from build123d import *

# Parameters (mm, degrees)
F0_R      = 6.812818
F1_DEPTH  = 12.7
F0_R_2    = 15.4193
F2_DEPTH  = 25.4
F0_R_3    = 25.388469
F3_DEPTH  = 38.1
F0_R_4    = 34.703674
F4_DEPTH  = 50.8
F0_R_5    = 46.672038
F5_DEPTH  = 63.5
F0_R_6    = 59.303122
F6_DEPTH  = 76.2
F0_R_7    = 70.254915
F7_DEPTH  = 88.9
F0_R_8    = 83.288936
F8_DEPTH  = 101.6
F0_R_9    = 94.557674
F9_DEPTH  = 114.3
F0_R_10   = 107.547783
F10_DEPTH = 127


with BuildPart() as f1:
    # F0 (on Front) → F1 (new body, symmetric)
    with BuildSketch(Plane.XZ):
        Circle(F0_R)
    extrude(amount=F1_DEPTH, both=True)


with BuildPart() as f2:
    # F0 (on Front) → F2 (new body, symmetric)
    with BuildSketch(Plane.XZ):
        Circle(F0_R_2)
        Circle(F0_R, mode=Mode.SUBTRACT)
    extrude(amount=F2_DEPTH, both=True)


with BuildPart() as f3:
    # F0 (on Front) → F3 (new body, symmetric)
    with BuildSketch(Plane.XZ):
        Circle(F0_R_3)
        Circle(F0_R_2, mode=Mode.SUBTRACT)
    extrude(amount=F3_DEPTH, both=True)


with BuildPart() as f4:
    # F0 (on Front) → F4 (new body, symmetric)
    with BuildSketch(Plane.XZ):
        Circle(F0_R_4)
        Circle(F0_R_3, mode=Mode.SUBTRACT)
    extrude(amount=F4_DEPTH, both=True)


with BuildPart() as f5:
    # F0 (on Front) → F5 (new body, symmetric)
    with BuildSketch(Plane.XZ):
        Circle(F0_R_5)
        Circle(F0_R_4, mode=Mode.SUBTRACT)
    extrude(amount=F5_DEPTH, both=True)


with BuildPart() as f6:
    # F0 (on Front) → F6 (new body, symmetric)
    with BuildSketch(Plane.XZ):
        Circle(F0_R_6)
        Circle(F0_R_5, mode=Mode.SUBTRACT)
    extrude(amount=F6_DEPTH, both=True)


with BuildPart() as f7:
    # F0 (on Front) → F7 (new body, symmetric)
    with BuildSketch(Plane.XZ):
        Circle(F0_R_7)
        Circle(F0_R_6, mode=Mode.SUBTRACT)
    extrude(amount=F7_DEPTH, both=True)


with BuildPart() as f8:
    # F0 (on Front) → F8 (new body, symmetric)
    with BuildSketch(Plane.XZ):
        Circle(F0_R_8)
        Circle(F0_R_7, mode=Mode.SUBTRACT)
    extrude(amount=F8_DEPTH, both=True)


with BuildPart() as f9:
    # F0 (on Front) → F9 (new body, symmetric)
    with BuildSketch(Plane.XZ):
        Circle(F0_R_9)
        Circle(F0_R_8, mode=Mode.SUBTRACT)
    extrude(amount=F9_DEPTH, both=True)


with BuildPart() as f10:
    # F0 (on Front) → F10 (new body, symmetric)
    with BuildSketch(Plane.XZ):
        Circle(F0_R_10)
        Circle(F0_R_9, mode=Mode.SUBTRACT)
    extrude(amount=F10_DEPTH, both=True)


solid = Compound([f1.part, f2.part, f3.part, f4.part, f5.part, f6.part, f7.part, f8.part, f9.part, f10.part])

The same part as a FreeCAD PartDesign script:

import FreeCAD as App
import Part
import Sketcher

V = App.Vector
Q = App.Units.Quantity

doc = App.newDocument("Part")
body = doc.addObject("PartDesign::Body", "Body")

# Sketch on XZ plane
sketch1 = body.newObject("Sketcher::SketchObject", "Sketch")
sketch1.AttachmentSupport = (doc.getObject("XZ_Plane"), [""])
sketch1.MapMode = "FlatFace"
sketch1.addGeometry(Part.Circle(V(0, 0, 0), V(0, 0, 1), 7), False)
sketch1.addConstraint(Sketcher.Constraint("Coincident", 0, 3, -1, 1))
sketch1.addConstraint(Sketcher.Constraint("Diameter", 0, Q("13.625636 mm")))
pad1 = body.newObject("PartDesign::Pad", "Pad")
pad1.Profile = sketch1
pad1.Length = Q("1 in")
pad1.Midplane = True
body2 = doc.addObject("PartDesign::Body", "Body001")

# Sketch on XZ plane
sketch2 = body2.newObject("Sketcher::SketchObject", "Sketch001")
sketch2.AttachmentSupport = (doc.getObject("XZ_Plane001"), [""])
sketch2.MapMode = "FlatFace"
sketch2.addGeometry(Part.Circle(V(0, 0, 0), V(0, 0, 1), 15), False)
sketch2.addGeometry(Part.Circle(V(0, 0, 0), V(0, 0, 1), 7), False)
sketch2.addConstraint(Sketcher.Constraint("Coincident", 0, 3, -1, 1))
sketch2.addConstraint(Sketcher.Constraint("Coincident", 1, 3, -1, 1))
sketch2.addConstraint(Sketcher.Constraint("Diameter", 0, Q("30.8386 mm")))
sketch2.addConstraint(Sketcher.Constraint("Diameter", 1, Q("13.625636 mm")))
pad2 = body2.newObject("PartDesign::Pad", "Pad001")
pad2.Profile = sketch2
pad2.Length = Q("2 in")
pad2.Midplane = True
body3 = doc.addObject("PartDesign::Body", "Body002")

# Sketch on XZ plane
sketch3 = body3.newObject("Sketcher::SketchObject", "Sketch002")
sketch3.AttachmentSupport = (doc.getObject("XZ_Plane002"), [""])
sketch3.MapMode = "FlatFace"
sketch3.addGeometry(Part.Circle(V(0, 0, 0), V(0, 0, 1), 25), False)
sketch3.addGeometry(Part.Circle(V(0, 0, 0), V(0, 0, 1), 15), False)
sketch3.addConstraint(Sketcher.Constraint("Coincident", 0, 3, -1, 1))
sketch3.addConstraint(Sketcher.Constraint("Coincident", 1, 3, -1, 1))
sketch3.addConstraint(Sketcher.Constraint("Diameter", 1, Q("30.8386 mm")))
sketch3.addConstraint(Sketcher.Constraint("Diameter", 0, Q("50.776938 mm")))
pad3 = body3.newObject("PartDesign::Pad", "Pad002")
pad3.Profile = sketch3
pad3.Length = Q("3 in")
pad3.Midplane = True
body4 = doc.addObject("PartDesign::Body", "Body003")

# Sketch on XZ plane
sketch4 = body4.newObject("Sketcher::SketchObject", "Sketch003")
sketch4.AttachmentSupport = (doc.getObject("XZ_Plane003"), [""])
sketch4.MapMode = "FlatFace"
sketch4.addGeometry(Part.Circle(V(0, 0, 0), V(0, 0, 1), 35), False)
sketch4.addGeometry(Part.Circle(V(0, 0, 0), V(0, 0, 1), 25), False)
sketch4.addConstraint(Sketcher.Constraint("Coincident", 0, 3, -1, 1))
sketch4.addConstraint(Sketcher.Constraint("Coincident", 1, 3, -1, 1))
sketch4.addConstraint(Sketcher.Constraint("Diameter", 0, Q("69.407348 mm")))
sketch4.addConstraint(Sketcher.Constraint("Diameter", 1, Q("50.776938 mm")))
pad4 = body4.newObject("PartDesign::Pad", "Pad003")
pad4.Profile = sketch4
pad4.Length = Q("4 in")
pad4.Midplane = True
body5 = doc.addObject("PartDesign::Body", "Body004")

# Sketch on XZ plane
sketch5 = body5.newObject("Sketcher::SketchObject", "Sketch004")
sketch5.AttachmentSupport = (doc.getObject("XZ_Plane004"), [""])
sketch5.MapMode = "FlatFace"
sketch5.addGeometry(Part.Circle(V(0, 0, 0), V(0, 0, 1), 47), False)
sketch5.addGeometry(Part.Circle(V(0, 0, 0), V(0, 0, 1), 35), False)
sketch5.addConstraint(Sketcher.Constraint("Coincident", 0, 3, -1, 1))
sketch5.addConstraint(Sketcher.Constraint("Coincident", 1, 3, -1, 1))
sketch5.addConstraint(Sketcher.Constraint("Diameter", 1, Q("69.407348 mm")))
sketch5.addConstraint(Sketcher.Constraint("Diameter", 0, Q("93.344076 mm")))
pad5 = body5.newObject("PartDesign::Pad", "Pad004")
pad5.Profile = sketch5
pad5.Length = Q("5 in")
pad5.Midplane = True
body6 = doc.addObject("PartDesign::Body", "Body005")

# Sketch on XZ plane
sketch6 = body6.newObject("Sketcher::SketchObject", "Sketch005")
sketch6.AttachmentSupport = (doc.getObject("XZ_Plane005"), [""])
sketch6.MapMode = "FlatFace"
sketch6.addGeometry(Part.Circle(V(0, 0, 0), V(0, 0, 1), 59), False)
sketch6.addGeometry(Part.Circle(V(0, 0, 0), V(0, 0, 1), 47), False)
sketch6.addConstraint(Sketcher.Constraint("Coincident", 0, 3, -1, 1))
sketch6.addConstraint(Sketcher.Constraint("Coincident", 1, 3, -1, 1))
sketch6.addConstraint(Sketcher.Constraint("Diameter", 0, Q("118.606244 mm")))
sketch6.addConstraint(Sketcher.Constraint("Diameter", 1, Q("93.344076 mm")))
pad6 = body6.newObject("PartDesign::Pad", "Pad005")
pad6.Profile = sketch6
pad6.Length = Q("6 in")
pad6.Midplane = True
body7 = doc.addObject("PartDesign::Body", "Body006")

# Sketch on XZ plane
sketch7 = body7.newObject("Sketcher::SketchObject", "Sketch006")
sketch7.AttachmentSupport = (doc.getObject("XZ_Plane006"), [""])
sketch7.MapMode = "FlatFace"
sketch7.addGeometry(Part.Circle(V(0, 0, 0), V(0, 0, 1), 70), False)
sketch7.addGeometry(Part.Circle(V(0, 0, 0), V(0, 0, 1), 59), False)
sketch7.addConstraint(Sketcher.Constraint("Coincident", 0, 3, -1, 1))
sketch7.addConstraint(Sketcher.Constraint("Coincident", 1, 3, -1, 1))
sketch7.addConstraint(Sketcher.Constraint("Diameter", 0, Q("140.50983 mm")))
sketch7.addConstraint(Sketcher.Constraint("Diameter", 1, Q("118.606244 mm")))
pad7 = body7.newObject("PartDesign::Pad", "Pad006")
pad7.Profile = sketch7
pad7.Length = Q("7 in")
pad7.Midplane = True
body8 = doc.addObject("PartDesign::Body", "Body007")

# Sketch on XZ plane
sketch8 = body8.newObject("Sketcher::SketchObject", "Sketch007")
sketch8.AttachmentSupport = (doc.getObject("XZ_Plane007"), [""])
sketch8.MapMode = "FlatFace"
sketch8.addGeometry(Part.Circle(V(0, 0, 0), V(0, 0, 1), 83), False)
sketch8.addGeometry(Part.Circle(V(0, 0, 0), V(0, 0, 1), 70), False)
sketch8.addConstraint(Sketcher.Constraint("Coincident", 0, 3, -1, 1))
sketch8.addConstraint(Sketcher.Constraint("Coincident", 1, 3, -1, 1))
sketch8.addConstraint(Sketcher.Constraint("Diameter", 1, Q("140.50983 mm")))
sketch8.addConstraint(Sketcher.Constraint("Diameter", 0, Q("166.577872 mm")))
pad8 = body8.newObject("PartDesign::Pad", "Pad007")
pad8.Profile = sketch8
pad8.Length = Q("8 in")
pad8.Midplane = True
body9 = doc.addObject("PartDesign::Body", "Body008")

# Sketch on XZ plane
sketch9 = body9.newObject("Sketcher::SketchObject", "Sketch008")
sketch9.AttachmentSupport = (doc.getObject("XZ_Plane008"), [""])
sketch9.MapMode = "FlatFace"
sketch9.addGeometry(Part.Circle(V(0, 0, 0), V(0, 0, 1), 95), False)
sketch9.addGeometry(Part.Circle(V(0, 0, 0), V(0, 0, 1), 83), False)
sketch9.addConstraint(Sketcher.Constraint("Coincident", 0, 3, -1, 1))
sketch9.addConstraint(Sketcher.Constraint("Coincident", 1, 3, -1, 1))
sketch9.addConstraint(Sketcher.Constraint("Diameter", 0, Q("189.115348 mm")))
sketch9.addConstraint(Sketcher.Constraint("Diameter", 1, Q("166.577872 mm")))
pad9 = body9.newObject("PartDesign::Pad", "Pad008")
pad9.Profile = sketch9
pad9.Length = Q("9 in")
pad9.Midplane = True
body10 = doc.addObject("PartDesign::Body", "Body009")

# Sketch on XZ plane
sketch10 = body10.newObject("Sketcher::SketchObject", "Sketch009")
sketch10.AttachmentSupport = (doc.getObject("XZ_Plane009"), [""])
sketch10.MapMode = "FlatFace"
sketch10.addGeometry(Part.Circle(V(0, 0, 0), V(0, 0, 1), 108), False)
sketch10.addGeometry(Part.Circle(V(0, 0, 0), V(0, 0, 1), 95), False)
sketch10.addConstraint(Sketcher.Constraint("Coincident", 0, 3, -1, 1))
sketch10.addConstraint(Sketcher.Constraint("Coincident", 1, 3, -1, 1))
sketch10.addConstraint(Sketcher.Constraint("Diameter", 1, Q("189.115348 mm")))
sketch10.addConstraint(Sketcher.Constraint("Diameter", 0, Q("215.095566 mm")))
pad10 = body10.newObject("PartDesign::Pad", "Pad009")
pad10.Profile = sketch10
pad10.Length = Q("10 in")
pad10.Midplane = True

doc.recompute()
